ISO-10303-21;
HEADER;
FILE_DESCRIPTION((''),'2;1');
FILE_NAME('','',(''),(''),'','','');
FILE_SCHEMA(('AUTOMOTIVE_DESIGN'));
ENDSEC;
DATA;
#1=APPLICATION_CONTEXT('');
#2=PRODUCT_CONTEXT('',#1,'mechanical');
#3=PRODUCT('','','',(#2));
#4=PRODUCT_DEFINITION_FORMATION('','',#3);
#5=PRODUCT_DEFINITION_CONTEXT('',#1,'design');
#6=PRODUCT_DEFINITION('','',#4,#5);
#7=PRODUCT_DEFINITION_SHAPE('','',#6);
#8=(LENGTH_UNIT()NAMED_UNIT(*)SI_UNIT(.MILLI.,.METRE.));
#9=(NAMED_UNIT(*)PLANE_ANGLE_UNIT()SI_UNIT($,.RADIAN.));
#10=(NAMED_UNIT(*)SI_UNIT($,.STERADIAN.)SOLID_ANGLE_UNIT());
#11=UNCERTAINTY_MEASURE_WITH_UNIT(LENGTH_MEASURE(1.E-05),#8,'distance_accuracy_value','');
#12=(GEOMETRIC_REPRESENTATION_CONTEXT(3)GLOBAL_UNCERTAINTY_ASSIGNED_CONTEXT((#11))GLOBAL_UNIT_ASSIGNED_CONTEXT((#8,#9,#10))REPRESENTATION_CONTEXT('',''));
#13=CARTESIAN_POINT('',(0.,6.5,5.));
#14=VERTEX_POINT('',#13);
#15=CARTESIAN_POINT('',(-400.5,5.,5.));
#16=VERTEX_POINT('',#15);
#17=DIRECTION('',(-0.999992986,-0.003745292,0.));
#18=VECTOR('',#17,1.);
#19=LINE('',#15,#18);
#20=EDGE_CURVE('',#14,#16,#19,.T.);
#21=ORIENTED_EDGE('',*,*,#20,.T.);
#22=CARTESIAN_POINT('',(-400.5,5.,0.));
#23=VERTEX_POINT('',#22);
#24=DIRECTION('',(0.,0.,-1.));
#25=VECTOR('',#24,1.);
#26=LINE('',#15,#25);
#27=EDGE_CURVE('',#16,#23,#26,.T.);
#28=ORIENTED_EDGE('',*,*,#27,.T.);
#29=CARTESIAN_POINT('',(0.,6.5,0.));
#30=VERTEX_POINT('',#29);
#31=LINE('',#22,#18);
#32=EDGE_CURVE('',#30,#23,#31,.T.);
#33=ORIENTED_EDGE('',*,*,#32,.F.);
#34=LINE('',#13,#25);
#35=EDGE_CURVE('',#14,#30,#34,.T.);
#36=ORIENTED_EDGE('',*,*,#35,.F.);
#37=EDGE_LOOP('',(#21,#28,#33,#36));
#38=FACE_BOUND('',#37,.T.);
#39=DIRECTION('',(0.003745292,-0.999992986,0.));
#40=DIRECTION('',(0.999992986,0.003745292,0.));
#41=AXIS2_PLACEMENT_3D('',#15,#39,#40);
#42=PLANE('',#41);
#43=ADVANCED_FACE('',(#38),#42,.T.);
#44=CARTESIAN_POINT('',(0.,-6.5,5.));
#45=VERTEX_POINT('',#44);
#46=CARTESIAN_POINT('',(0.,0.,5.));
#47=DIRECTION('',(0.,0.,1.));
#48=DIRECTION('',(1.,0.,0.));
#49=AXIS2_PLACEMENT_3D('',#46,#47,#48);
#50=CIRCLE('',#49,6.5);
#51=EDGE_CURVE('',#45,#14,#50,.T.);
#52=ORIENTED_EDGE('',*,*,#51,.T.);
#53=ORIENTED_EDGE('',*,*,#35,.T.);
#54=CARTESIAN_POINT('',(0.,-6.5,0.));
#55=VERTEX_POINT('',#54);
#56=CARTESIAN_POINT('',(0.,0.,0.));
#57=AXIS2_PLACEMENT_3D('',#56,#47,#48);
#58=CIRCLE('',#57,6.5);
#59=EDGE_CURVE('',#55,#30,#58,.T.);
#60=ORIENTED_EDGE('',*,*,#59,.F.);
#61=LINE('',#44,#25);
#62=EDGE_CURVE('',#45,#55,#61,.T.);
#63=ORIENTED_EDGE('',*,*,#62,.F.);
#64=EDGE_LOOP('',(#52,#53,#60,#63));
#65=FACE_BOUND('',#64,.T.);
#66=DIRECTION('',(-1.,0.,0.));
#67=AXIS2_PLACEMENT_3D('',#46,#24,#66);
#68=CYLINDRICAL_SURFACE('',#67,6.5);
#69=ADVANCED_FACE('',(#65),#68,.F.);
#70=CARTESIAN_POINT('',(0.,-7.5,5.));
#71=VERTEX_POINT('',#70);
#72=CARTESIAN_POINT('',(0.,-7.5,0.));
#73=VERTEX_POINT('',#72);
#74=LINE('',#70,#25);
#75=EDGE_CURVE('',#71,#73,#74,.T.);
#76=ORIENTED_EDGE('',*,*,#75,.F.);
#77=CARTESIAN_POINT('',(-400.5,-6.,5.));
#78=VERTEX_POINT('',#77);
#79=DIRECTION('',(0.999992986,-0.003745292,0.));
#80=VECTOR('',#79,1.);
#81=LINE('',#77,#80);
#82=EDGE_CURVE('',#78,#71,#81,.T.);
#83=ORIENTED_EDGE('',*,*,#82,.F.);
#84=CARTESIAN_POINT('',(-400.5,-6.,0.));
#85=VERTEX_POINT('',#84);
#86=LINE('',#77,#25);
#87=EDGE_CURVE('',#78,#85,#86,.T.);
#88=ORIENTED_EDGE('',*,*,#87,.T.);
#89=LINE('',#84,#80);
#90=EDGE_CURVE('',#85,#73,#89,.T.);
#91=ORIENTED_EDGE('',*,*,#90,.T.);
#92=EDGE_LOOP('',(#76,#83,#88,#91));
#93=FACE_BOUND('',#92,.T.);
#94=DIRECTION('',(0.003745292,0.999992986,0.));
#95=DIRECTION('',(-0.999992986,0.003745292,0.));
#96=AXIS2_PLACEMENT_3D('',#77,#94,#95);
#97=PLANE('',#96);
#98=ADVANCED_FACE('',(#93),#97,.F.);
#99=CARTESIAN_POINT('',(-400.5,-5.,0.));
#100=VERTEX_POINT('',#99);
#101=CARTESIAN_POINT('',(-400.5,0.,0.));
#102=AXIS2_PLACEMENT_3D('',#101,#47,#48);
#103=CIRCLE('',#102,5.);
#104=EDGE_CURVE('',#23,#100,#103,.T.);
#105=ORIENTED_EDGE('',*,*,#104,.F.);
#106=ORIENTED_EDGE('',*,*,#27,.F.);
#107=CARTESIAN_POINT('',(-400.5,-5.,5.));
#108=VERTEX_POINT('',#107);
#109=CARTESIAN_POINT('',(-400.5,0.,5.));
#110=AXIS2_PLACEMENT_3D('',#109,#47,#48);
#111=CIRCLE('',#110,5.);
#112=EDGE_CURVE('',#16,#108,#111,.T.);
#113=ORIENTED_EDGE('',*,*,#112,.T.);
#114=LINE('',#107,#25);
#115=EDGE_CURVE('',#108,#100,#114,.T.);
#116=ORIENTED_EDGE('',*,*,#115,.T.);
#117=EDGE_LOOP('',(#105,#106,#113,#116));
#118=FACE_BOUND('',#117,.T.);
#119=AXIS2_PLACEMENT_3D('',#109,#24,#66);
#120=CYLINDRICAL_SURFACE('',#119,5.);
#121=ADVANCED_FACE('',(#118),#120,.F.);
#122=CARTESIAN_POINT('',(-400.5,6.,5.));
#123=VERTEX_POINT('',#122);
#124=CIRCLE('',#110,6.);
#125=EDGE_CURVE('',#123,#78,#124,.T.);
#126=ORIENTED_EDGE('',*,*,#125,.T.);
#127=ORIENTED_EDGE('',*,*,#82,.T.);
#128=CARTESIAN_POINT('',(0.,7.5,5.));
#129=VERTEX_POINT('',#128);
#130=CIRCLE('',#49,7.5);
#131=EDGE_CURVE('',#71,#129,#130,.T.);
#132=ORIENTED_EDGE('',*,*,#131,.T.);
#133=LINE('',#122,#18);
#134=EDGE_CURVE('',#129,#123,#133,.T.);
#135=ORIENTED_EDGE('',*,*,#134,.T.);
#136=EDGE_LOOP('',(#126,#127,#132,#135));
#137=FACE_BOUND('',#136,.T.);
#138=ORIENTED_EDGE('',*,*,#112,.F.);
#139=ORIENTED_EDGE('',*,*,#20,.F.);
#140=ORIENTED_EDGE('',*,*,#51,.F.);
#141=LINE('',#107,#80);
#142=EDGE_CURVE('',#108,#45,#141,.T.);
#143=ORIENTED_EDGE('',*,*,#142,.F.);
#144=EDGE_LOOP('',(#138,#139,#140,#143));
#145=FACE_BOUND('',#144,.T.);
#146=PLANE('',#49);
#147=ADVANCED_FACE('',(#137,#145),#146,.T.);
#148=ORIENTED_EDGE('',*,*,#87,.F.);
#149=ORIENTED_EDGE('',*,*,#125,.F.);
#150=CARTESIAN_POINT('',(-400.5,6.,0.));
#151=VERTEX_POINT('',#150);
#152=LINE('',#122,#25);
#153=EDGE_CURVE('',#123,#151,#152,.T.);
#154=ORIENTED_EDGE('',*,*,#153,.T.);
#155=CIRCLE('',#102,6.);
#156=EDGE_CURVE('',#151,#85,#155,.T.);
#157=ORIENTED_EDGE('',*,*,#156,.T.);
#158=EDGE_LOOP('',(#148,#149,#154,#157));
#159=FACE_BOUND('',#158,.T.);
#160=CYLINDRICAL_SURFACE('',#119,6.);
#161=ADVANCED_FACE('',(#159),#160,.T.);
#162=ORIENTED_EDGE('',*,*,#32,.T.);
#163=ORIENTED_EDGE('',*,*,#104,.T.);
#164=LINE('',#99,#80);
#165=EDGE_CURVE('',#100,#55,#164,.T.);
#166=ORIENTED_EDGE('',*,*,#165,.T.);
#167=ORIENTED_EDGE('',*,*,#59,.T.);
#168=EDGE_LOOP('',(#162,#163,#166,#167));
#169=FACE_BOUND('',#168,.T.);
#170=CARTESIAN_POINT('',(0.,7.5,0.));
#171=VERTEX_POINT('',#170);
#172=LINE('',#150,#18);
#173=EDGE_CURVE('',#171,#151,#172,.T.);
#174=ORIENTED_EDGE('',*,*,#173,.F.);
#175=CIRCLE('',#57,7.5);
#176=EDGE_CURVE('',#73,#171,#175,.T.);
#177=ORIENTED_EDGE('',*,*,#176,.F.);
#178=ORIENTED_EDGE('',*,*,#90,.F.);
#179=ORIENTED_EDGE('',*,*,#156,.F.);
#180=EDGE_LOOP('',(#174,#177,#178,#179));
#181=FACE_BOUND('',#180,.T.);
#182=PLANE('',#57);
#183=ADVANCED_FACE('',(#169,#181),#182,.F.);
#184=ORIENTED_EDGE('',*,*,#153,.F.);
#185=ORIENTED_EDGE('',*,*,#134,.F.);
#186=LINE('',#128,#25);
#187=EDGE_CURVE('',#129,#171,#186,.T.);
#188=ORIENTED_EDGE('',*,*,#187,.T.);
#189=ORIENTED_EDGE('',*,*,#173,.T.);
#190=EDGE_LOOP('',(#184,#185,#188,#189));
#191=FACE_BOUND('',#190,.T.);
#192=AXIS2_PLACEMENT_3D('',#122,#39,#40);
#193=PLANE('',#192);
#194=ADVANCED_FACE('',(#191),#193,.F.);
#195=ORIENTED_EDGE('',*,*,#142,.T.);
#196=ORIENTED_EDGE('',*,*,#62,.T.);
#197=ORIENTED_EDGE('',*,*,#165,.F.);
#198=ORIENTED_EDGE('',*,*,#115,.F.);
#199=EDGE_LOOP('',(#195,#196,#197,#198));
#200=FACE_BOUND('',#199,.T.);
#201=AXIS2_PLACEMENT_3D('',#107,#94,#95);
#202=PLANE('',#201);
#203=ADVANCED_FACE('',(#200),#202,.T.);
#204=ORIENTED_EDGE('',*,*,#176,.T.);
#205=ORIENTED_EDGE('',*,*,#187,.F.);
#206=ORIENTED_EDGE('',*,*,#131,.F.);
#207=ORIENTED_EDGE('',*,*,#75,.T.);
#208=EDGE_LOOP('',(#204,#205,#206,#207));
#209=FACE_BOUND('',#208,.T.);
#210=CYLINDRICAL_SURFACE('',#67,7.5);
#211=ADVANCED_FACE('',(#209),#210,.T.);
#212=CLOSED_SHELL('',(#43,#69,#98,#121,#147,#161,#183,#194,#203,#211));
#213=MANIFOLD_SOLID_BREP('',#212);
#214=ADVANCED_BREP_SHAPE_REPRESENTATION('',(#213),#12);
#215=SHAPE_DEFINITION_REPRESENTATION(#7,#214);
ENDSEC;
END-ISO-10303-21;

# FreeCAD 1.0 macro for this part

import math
import FreeCAD as App
import Part
import Sketcher
from FreeCAD import Vector
Q = App.Units.Quantity

doc = App.newDocument("Part")
params = doc.addObject("Spreadsheet::Sheet", "Params")
for row, (alias, value) in enumerate([
    ("sketch1_radius", "6 mm"),
    ("sketch1_radius2", "5 mm"),
    ("sketch1_radius3", "7.5 mm"),
    ("pad1_length", "5 mm"),
], start=1):
    params.set(f"A{row}", alias)
    params.set(f"B{row}", "=" + value)
    params.setAlias(f"B{row}", alias)

body = doc.addObject("PartDesign::Body", "Body")

sketch1 = body.newObject("Sketcher::SketchObject", "Sketch")
sketch1.AttachmentSupport = (doc.getObject("XY_Plane"), [""])
sketch1.MapMode = "FlatFace"
sketch1.addGeometry([
    Part.LineSegment(Vector(0, 8, 0), Vector(-400, 6, 0)),
    Part.ArcOfCircle(Part.Circle(Vector(-400, 0, 0), Vector(0, 0, 1), 6), math.radians(90), math.radians(270)),
    Part.LineSegment(Vector(-400, -6, 0), Vector(0, -8, 0)),
    Part.ArcOfCircle(Part.Circle(Vector(0, 0, 0), Vector(0, 0, 1), 8), math.radians(-90), math.radians(90)),
    Part.LineSegment(Vector(-400, 5, 0), Vector(0, 6, 0)),
    Part.ArcOfCircle(Part.Circle(Vector(0, 0, 0), Vector(0, 0, 1), 6), math.radians(-90), math.radians(90)),
    Part.LineSegment(Vector(0, -6, 0), Vector(-400, -5, 0)),
    Part.ArcOfCircle(Part.Circle(Vector(-400, 0, 0), Vector(0, 0, 1), 5), math.radians(90), math.radians(270)),
], False)
sketch1.addConstraint([
    Sketcher.Constraint("Coincident", 0, 2, 1, 1),
    Sketcher.Constraint("Coincident", 1, 2, 2, 1),
    Sketcher.Constraint("Coincident", 2, 2, 3, 1),
    Sketcher.Constraint("Coincident", 3, 2, 0, 1),
    Sketcher.Constraint("Coincident", 4, 2, 5, 2),
    Sketcher.Constraint("Coincident", 5, 1, 6, 1),
    Sketcher.Constraint("Coincident", 6, 2, 7, 2),
    Sketcher.Constraint("Coincident", 7, 1, 4, 1),
    Sketcher.Constraint("Coincident", 3, 3, -1, 1),
    Sketcher.Constraint("Coincident", 5, 3, -1, 1),
    Sketcher.Constraint("Coincident", 7, 3, 1, 3),
    Sketcher.Constraint("Symmetric", 0, 2, 1, 2, -1),
    Sketcher.Constraint("PointOnObject", 2, 2, -2),
    Sketcher.Constraint("PointOnObject", 3, 2, -2),
    Sketcher.Constraint("PointOnObject", 4, 2, -2),
    Sketcher.Constraint("PointOnObject", 5, 1, -2),
    Sketcher.Constraint("Parallel", 0, 4),
    Sketcher.Constraint("Parallel", 2, 6),
    Sketcher.Constraint("Vertical", 7, 3, 0, 2),
    Sketcher.Constraint("Vertical", 1, 2, 6, 2),
    Sketcher.Constraint("Radius", 1, Q("6 mm")),
    Sketcher.Constraint("Radius", 7, Q("5 mm")),
    Sketcher.Constraint("Radius", 3, Q("7.5 mm")),
    Sketcher.Constraint("DistanceX", 1, 3, -1, 1, Q("400.5 mm")),
])
sketch1.setExpression("Constraints[20]", "Params.sketch1_radius")
sketch1.setExpression("Constraints[21]", "Params.sketch1_radius2")
sketch1.setExpression("Constraints[22]", "Params.sketch1_radius3")
pad1 = body.newObject("PartDesign::Pad", "Pad")
pad1.Profile = sketch1
pad1.setExpression("Length", "Params.pad1_length")

doc.recompute()
